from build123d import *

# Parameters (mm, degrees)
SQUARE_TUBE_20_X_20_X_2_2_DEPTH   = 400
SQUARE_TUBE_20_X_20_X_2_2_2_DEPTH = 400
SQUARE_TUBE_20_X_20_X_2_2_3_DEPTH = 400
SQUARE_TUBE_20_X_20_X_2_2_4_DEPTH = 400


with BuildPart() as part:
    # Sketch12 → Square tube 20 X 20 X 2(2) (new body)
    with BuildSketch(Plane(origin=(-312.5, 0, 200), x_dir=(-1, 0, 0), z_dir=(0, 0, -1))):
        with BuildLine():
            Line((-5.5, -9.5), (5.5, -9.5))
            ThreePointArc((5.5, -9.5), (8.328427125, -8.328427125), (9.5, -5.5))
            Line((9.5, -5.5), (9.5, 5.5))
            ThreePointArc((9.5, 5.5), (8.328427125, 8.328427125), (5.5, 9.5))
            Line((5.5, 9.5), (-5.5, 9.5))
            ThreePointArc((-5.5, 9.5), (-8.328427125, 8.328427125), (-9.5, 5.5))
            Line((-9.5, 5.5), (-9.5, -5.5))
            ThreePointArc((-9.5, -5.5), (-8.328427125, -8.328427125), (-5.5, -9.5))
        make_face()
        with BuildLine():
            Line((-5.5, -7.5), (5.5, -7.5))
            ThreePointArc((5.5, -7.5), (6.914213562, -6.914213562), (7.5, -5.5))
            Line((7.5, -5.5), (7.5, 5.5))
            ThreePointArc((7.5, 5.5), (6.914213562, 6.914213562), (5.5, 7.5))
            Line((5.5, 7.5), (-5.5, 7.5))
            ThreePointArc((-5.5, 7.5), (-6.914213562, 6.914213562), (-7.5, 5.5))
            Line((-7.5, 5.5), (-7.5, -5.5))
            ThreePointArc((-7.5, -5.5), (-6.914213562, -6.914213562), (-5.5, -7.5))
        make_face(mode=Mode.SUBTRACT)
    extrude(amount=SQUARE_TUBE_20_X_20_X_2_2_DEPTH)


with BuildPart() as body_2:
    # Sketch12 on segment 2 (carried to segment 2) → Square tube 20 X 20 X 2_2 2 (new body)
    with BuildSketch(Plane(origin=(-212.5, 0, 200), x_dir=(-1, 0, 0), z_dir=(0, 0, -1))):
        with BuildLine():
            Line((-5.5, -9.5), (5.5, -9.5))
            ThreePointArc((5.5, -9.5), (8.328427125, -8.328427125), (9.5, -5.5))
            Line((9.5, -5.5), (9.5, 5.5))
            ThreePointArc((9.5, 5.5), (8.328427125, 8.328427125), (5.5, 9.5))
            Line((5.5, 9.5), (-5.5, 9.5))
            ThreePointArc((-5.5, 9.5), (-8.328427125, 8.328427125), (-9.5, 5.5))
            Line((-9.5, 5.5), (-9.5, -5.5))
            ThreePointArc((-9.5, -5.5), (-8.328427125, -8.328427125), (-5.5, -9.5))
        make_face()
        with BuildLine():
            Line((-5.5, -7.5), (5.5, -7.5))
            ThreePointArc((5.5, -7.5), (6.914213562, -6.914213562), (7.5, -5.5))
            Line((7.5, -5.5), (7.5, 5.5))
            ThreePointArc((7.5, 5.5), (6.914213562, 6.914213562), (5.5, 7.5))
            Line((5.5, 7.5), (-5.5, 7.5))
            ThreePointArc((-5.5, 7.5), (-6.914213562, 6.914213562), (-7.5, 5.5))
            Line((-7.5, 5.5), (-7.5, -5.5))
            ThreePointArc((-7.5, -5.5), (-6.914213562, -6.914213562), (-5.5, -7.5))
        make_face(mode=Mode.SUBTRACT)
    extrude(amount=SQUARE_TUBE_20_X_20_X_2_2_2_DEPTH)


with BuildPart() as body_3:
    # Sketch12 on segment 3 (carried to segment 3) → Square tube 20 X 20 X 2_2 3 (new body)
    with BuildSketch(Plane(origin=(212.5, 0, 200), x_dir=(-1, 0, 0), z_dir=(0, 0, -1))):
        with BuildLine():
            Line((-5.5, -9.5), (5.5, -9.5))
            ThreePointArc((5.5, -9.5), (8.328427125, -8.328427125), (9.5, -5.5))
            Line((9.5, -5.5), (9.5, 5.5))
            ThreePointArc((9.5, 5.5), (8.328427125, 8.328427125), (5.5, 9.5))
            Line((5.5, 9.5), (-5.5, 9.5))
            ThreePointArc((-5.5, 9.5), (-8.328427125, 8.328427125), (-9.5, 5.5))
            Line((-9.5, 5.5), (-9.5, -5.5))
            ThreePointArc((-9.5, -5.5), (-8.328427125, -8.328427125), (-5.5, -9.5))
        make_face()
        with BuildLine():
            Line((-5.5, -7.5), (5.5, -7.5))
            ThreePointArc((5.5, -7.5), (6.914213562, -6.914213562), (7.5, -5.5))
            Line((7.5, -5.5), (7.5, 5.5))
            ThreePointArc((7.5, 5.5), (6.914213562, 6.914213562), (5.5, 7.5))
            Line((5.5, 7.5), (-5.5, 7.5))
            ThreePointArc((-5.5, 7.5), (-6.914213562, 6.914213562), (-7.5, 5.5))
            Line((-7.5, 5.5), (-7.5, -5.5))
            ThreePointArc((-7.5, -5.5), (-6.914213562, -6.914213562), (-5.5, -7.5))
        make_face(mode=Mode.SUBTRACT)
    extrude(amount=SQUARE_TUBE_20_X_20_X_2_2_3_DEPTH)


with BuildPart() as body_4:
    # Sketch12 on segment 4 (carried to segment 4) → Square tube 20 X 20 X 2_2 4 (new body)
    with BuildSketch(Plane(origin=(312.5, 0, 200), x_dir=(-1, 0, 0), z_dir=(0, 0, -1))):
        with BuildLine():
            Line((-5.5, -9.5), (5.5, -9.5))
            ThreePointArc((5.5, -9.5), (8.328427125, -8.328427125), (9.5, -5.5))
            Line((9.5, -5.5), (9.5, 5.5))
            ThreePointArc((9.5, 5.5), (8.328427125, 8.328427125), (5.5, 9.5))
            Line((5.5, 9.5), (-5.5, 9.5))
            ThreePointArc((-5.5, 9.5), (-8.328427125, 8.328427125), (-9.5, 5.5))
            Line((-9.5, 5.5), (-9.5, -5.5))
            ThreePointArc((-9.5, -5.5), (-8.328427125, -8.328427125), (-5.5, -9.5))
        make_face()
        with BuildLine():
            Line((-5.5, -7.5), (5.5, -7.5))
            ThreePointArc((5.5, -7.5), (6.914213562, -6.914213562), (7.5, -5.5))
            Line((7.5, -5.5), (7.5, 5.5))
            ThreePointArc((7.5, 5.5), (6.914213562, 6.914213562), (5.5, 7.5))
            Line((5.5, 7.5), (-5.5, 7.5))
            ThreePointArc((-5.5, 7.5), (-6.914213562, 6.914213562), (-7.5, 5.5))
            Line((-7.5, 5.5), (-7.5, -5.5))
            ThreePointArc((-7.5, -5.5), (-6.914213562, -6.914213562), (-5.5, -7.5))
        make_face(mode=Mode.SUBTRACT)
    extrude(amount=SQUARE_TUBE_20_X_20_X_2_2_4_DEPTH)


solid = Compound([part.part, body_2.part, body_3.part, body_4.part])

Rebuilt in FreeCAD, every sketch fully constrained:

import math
import FreeCAD as App
import Part
import Sketcher
from FreeCAD import Vector
Q = App.Units.Quantity

doc = App.newDocument("Part")
body = doc.addObject("PartDesign::Body", "Body")

# Sketch on XY plane
sketch1 = body.newObject("Sketcher::SketchObject", "Sketch")
sketch1.AttachmentSupport = (doc.getObject("XY_Plane"), [""])
sketch1.MapMode = "FlatFace"
sketch1.AttachmentOffset = App.Placement(Vector(0, 0, 200), App.Rotation())
sketch1.addGeometry([
    Part.LineSegment(Vector(-307, -9.5, 0), Vector(-318, -9.5, 0)),  # 0
    Part.ArcOfCircle(Part.Circle(Vector(-318, -5.5, 0), Vector(0, 0, 1), 4), math.radians(180), math.radians(270)),  # 1
    Part.LineSegment(Vector(-322, -5.5, 0), Vector(-322, 5.5, 0)),  # 2
    Part.ArcOfCircle(Part.Circle(Vector(-318, 5.5, 0), Vector(0, 0, 1), 4), math.radians(90), math.radians(180)),  # 3
    Part.LineSegment(Vector(-318, 9.5, 0), Vector(-307, 9.5, 0)),  # 4
    Part.ArcOfCircle(Part.Circle(Vector(-307, 5.5, 0), Vector(0, 0, 1), 4), math.radians(0), math.radians(90)),  # 5
    Part.LineSegment(Vector(-303, 5.5, 0), Vector(-303, -5.5, 0)),  # 6
    Part.ArcOfCircle(Part.Circle(Vector(-307, -5.5, 0), Vector(0, 0, 1), 4), math.radians(-90), math.radians(0)),  # 7
    Part.LineSegment(Vector(-318, -7.5, 0), Vector(-307, -7.5, 0)),  # 8
    Part.ArcOfCircle(Part.Circle(Vector(-307, -5.5, 0), Vector(0, 0, 1), 2), math.radians(-90), math.radians(0)),  # 9
    Part.LineSegment(Vector(-305, -5.5, 0), Vector(-305, 5.5, 0)),  # 10
    Part.ArcOfCircle(Part.Circle(Vector(-307, 5.5, 0), Vector(0, 0, 1), 2), math.radians(0), math.radians(90)),  # 11
    Part.LineSegment(Vector(-307, 7.5, 0), Vector(-318, 7.5, 0)),  # 12
    Part.ArcOfCircle(Part.Circle(Vector(-318, 5.5, 0), Vector(0, 0, 1), 2), math.radians(90), math.radians(180)),  # 13
    Part.LineSegment(Vector(-320, 5.5, 0), Vector(-320, -5.5, 0)),  # 14
    Part.ArcOfCircle(Part.Circle(Vector(-318, -5.5, 0), Vector(0, 0, 1), 2), math.radians(-180), math.radians(-90)),  # 15
], False)
sketch1.addConstraint([
    Sketcher.Constraint("Tangent", 0, 2, 1, 2),
    Sketcher.Constraint("Tangent", 1, 1, 2, 1),
    Sketcher.Constraint("Tangent", 2, 2, 3, 2),
    Sketcher.Constraint("Tangent", 3, 1, 4, 1),
    Sketcher.Constraint("Tangent", 4, 2, 5, 2),
    Sketcher.Constraint("Tangent", 5, 1, 6, 1),
    Sketcher.Constraint("Tangent", 6, 2, 7, 2),
    Sketcher.Constraint("Tangent", 7, 1, 0, 1),
    Sketcher.Constraint("Tangent", 8, 2, 9, 1),
    Sketcher.Constraint("Tangent", 9, 2, 10, 1),
    Sketcher.Constraint("Tangent", 10, 2, 11, 1),
    Sketcher.Constraint("Tangent", 11, 2, 12, 1),
    Sketcher.Constraint("Tangent", 12, 2, 13, 1),
    Sketcher.Constraint("Tangent", 13, 2, 14, 1),
    Sketcher.Constraint("Tangent", 14, 2, 15, 1),
    Sketcher.Constraint("Tangent", 15, 2, 8, 1),
    Sketcher.Constraint("Horizontal", 0),
    Sketcher.Constraint("Vertical", 2),
    Sketcher.Constraint("Horizontal", 4),
    Sketcher.Constraint("Vertical", 6),
    Sketcher.Constraint("Horizontal", 8),
    Sketcher.Constraint("Vertical", 10),
    Sketcher.Constraint("Horizontal", 12),
    Sketcher.Constraint("Vertical", 14),
    Sketcher.Constraint("Coincident", 9, 3, 7, 3),
    Sketcher.Constraint("Coincident", 11, 3, 5, 3),
    Sketcher.Constraint("Coincident", 13, 3, 3, 3),
    Sketcher.Constraint("Equal", 1, 3),
    Sketcher.Constraint("Equal", 3, 5),
    Sketcher.Constraint("Equal", 5, 7),
    Sketcher.Constraint("Equal", 13, 15),
    Sketcher.Constraint("Equal", 12, 2),
    Sketcher.Constraint("Radius", 1, Q("4 mm")),
    Sketcher.Constraint("Radius", 9, Q("2 mm")),
    Sketcher.Constraint("DistanceX", 0, 2, 0, 1, Q("11 mm")),
    Sketcher.Constraint("DistanceX", 1, 3, -1, 1, Q("318 mm")),
    Sketcher.Constraint("DistanceY", 1, 3, -1, 1, Q("5.5 mm")),
])
pad1 = body.newObject("PartDesign::Pad", "Pad")
pad1.Profile = sketch1
pad1.Length = 400
pad1.Reversed = True
body2 = doc.addObject("PartDesign::Body", "Body001")

# Sketch on XY plane
sketch2 = body2.newObject("Sketcher::SketchObject", "Sketch001")
sketch2.AttachmentSupport = (doc.getObject("XY_Plane001"), [""])
sketch2.MapMode = "FlatFace"
sketch2.AttachmentOffset = App.Placement(Vector(0, 0, 200), App.Rotation())
sketch2.addGeometry([
    Part.LineSegment(Vector(-207, -9.5, 0), Vector(-218, -9.5, 0)),  # 0
    Part.ArcOfCircle(Part.Circle(Vector(-218, -5.5, 0), Vector(0, 0, 1), 4), math.radians(180), math.radians(270)),  # 1
    Part.LineSegment(Vector(-222, -5.5, 0), Vector(-222, 5.5, 0)),  # 2
    Part.ArcOfCircle(Part.Circle(Vector(-218, 5.5, 0), Vector(0, 0, 1), 4), math.radians(90), math.radians(180)),  # 3
    Part.LineSegment(Vector(-218, 9.5, 0), Vector(-207, 9.5, 0)),  # 4
    Part.ArcOfCircle(Part.Circle(Vector(-207, 5.5, 0), Vector(0, 0, 1), 4), math.radians(0), math.radians(90)),  # 5
    Part.LineSegment(Vector(-203, 5.5, 0), Vector(-203, -5.5, 0)),  # 6
    Part.ArcOfCircle(Part.Circle(Vector(-207, -5.5, 0), Vector(0, 0, 1), 4), math.radians(-90), math.radians(0)),  # 7
    Part.LineSegment(Vector(-218, -7.5, 0), Vector(-207, -7.5, 0)),  # 8
    Part.ArcOfCircle(Part.Circle(Vector(-207, -5.5, 0), Vector(0, 0, 1), 2), math.radians(-90), math.radians(0)),  # 9
    Part.LineSegment(Vector(-205, -5.5, 0), Vector(-205, 5.5, 0)),  # 10
    Part.ArcOfCircle(Part.Circle(Vector(-207, 5.5, 0), Vector(0, 0, 1), 2), math.radians(0), math.radians(90)),  # 11
    Part.LineSegment(Vector(-207, 7.5, 0), Vector(-218, 7.5, 0)),  # 12
    Part.ArcOfCircle(Part.Circle(Vector(-218, 5.5, 0), Vector(0, 0, 1), 2), math.radians(90), math.radians(180)),  # 13
    Part.LineSegment(Vector(-220, 5.5, 0), Vector(-220, -5.5, 0)),  # 14
    Part.ArcOfCircle(Part.Circle(Vector(-218, -5.5, 0), Vector(0, 0, 1), 2), math.radians(-180), math.radians(-90)),  # 15
], False)
sketch2.addConstraint([
    Sketcher.Constraint("Tangent", 0, 2, 1, 2),
    Sketcher.Constraint("Tangent", 1, 1, 2, 1),
    Sketcher.Constraint("Tangent", 2, 2, 3, 2),
    Sketcher.Constraint("Tangent", 3, 1, 4, 1),
    Sketcher.Constraint("Tangent", 4, 2, 5, 2),
    Sketcher.Constraint("Tangent", 5, 1, 6, 1),
    Sketcher.Constraint("Tangent", 6, 2, 7, 2),
    Sketcher.Constraint("Tangent", 7, 1, 0, 1),
    Sketcher.Constraint("Tangent", 8, 2, 9, 1),
    Sketcher.Constraint("Tangent", 9, 2, 10, 1),
    Sketcher.Constraint("Tangent", 10, 2, 11, 1),
    Sketcher.Constraint("Tangent", 11, 2, 12, 1),
    Sketcher.Constraint("Tangent", 12, 2, 13, 1),
    Sketcher.Constraint("Tangent", 13, 2, 14, 1),
    Sketcher.Constraint("Tangent", 14, 2, 15, 1),
    Sketcher.Constraint("Tangent", 15, 2, 8, 1),
    Sketcher.Constraint("Horizontal", 0),
    Sketcher.Constraint("Vertical", 2),
    Sketcher.Constraint("Horizontal", 4),
    Sketcher.Constraint("Vertical", 6),
    Sketcher.Constraint("Horizontal", 8),
    Sketcher.Constraint("Vertical", 10),
    Sketcher.Constraint("Horizontal", 12),
    Sketcher.Constraint("Vertical", 14),
    Sketcher.Constraint("Coincident", 9, 3, 7, 3),
    Sketcher.Constraint("Coincident", 11, 3, 5, 3),
    Sketcher.Constraint("Coincident", 13, 3, 3, 3),
    Sketcher.Constraint("Equal", 1, 3),
    Sketcher.Constraint("Equal", 3, 5),
    Sketcher.Constraint("Equal", 5, 7),
    Sketcher.Constraint("Equal", 13, 15),
    Sketcher.Constraint("Equal", 12, 2),
    Sketcher.Constraint("Radius", 1, Q("4 mm")),
    Sketcher.Constraint("Radius", 9, Q("2 mm")),
    Sketcher.Constraint("DistanceX", 0, 2, 0, 1, Q("11 mm")),
    Sketcher.Constraint("DistanceX", 1, 3, -1, 1, Q("218 mm")),
    Sketcher.Constraint("DistanceY", 1, 3, -1, 1, Q("5.5 mm")),
])
pad2 = body2.newObject("PartDesign::Pad", "Pad001")
pad2.Profile = sketch2
pad2.Length = 400
pad2.Reversed = True
body3 = doc.addObject("PartDesign::Body", "Body002")

# Sketch on XY plane
sketch3 = body3.newObject("Sketcher::SketchObject", "Sketch002")
sketch3.AttachmentSupport = (doc.getObject("XY_Plane002"), [""])
sketch3.MapMode = "FlatFace"
sketch3.AttachmentOffset = App.Placement(Vector(0, 0, 200), App.Rotation())
sketch3.addGeometry([
    Part.LineSegment(Vector(218, -9.5, 0), Vector(207, -9.5, 0)),  # 0
    Part.ArcOfCircle(Part.Circle(Vector(207, -5.5, 0), Vector(0, 0, 1), 4), math.radians(180), math.radians(270)),  # 1
    Part.LineSegment(Vector(203, -5.5, 0), Vector(203, 5.5, 0)),  # 2
    Part.ArcOfCircle(Part.Circle(Vector(207, 5.5, 0), Vector(0, 0, 1), 4), math.radians(90), math.radians(180)),  # 3
    Part.LineSegment(Vector(207, 9.5, 0), Vector(218, 9.5, 0)),  # 4
    Part.ArcOfCircle(Part.Circle(Vector(218, 5.5, 0), Vector(0, 0, 1), 4), math.radians(0), math.radians(90)),  # 5
    Part.LineSegment(Vector(222, 5.5, 0), Vector(222, -5.5, 0)),  # 6
    Part.ArcOfCircle(Part.Circle(Vector(218, -5.5, 0), Vector(0, 0, 1), 4), math.radians(-90), math.radians(0)),  # 7
    Part.LineSegment(Vector(207, -7.5, 0), Vector(218, -7.5, 0)),  # 8
    Part.ArcOfCircle(Part.Circle(Vector(218, -5.5, 0), Vector(0, 0, 1), 2), math.radians(-90), math.radians(0)),  # 9
    Part.LineSegment(Vector(220, -5.5, 0), Vector(220, 5.5, 0)),  # 10
    Part.ArcOfCircle(Part.Circle(Vector(218, 5.5, 0), Vector(0, 0, 1), 2), math.radians(0), math.radians(90)),  # 11
    Part.LineSegment(Vector(218, 7.5, 0), Vector(207, 7.5, 0)),  # 12
    Part.ArcOfCircle(Part.Circle(Vector(207, 5.5, 0), Vector(0, 0, 1), 2), math.radians(90), math.radians(180)),  # 13
    Part.LineSegment(Vector(205, 5.5, 0), Vector(205, -5.5, 0)),  # 14
    Part.ArcOfCircle(Part.Circle(Vector(207, -5.5, 0), Vector(0, 0, 1), 2), math.radians(-180), math.radians(-90)),  # 15
], False)
sketch3.addConstraint([
    Sketcher.Constraint("Tangent", 0, 2, 1, 2),
    Sketcher.Constraint("Tangent", 1, 1, 2, 1),
    Sketcher.Constraint("Tangent", 2, 2, 3, 2),
    Sketcher.Constraint("Tangent", 3, 1, 4, 1),
    Sketcher.Constraint("Tangent", 4, 2, 5, 2),
    Sketcher.Constraint("Tangent", 5, 1, 6, 1),
    Sketcher.Constraint("Tangent", 6, 2, 7, 2),
    Sketcher.Constraint("Tangent", 7, 1, 0, 1),
    Sketcher.Constraint("Tangent", 8, 2, 9, 1),
    Sketcher.Constraint("Tangent", 9, 2, 10, 1),
    Sketcher.Constraint("Tangent", 10, 2, 11, 1),
    Sketcher.Constraint("Tangent", 11, 2, 12, 1),
    Sketcher.Constraint("Tangent", 12, 2, 13, 1),
    Sketcher.Constraint("Tangent", 13, 2, 14, 1),
    Sketcher.Constraint("Tangent", 14, 2, 15, 1),
    Sketcher.Constraint("Tangent", 15, 2, 8, 1),
    Sketcher.Constraint("Horizontal", 0),
    Sketcher.Constraint("Vertical", 2),
    Sketcher.Constraint("Horizontal", 4),
    Sketcher.Constraint("Vertical", 6),
    Sketcher.Constraint("Horizontal", 8),
    Sketcher.Constraint("Vertical", 10),
    Sketcher.Constraint("Horizontal", 12),
    Sketcher.Constraint("Vertical", 14),
    Sketcher.Constraint("Coincident", 9, 3, 7, 3),
    Sketcher.Constraint("Coincident", 11, 3, 5, 3),
    Sketcher.Constraint("Coincident", 13, 3, 3, 3),
    Sketcher.Constraint("Equal", 1, 3),
    Sketcher.Constraint("Equal", 3, 5),
    Sketcher.Constraint("Equal", 5, 7),
    Sketcher.Constraint("Equal", 13, 15),
    Sketcher.Constraint("Equal", 12, 2),
    Sketcher.Constraint("Radius", 1, Q("4 mm")),
    Sketcher.Constraint("Radius", 9, Q("2 mm")),
    Sketcher.Constraint("DistanceX", 0, 2, 0, 1, Q("11 mm")),
    Sketcher.Constraint("DistanceX", -1, 1, 1, 3, Q("207 mm")),
    Sketcher.Constraint("DistanceY", 1, 3, -1, 1, Q("5.5 mm")),
])
pad3 = body3.newObject("PartDesign::Pad", "Pad002")
pad3.Profile = sketch3
pad3.Length = 400
pad3.Reversed = True
body4 = doc.addObject("PartDesign::Body", "Body003")

# Sketch on XY plane
sketch4 = body4.newObject("Sketcher::SketchObject", "Sketch003")
sketch4.AttachmentSupport = (doc.getObject("XY_Plane003"), [""])
sketch4.MapMode = "FlatFace"
sketch4.AttachmentOffset = App.Placement(Vector(0, 0, 200), App.Rotation())
sketch4.addGeometry([
    Part.LineSegment(Vector(318, -9.5, 0), Vector(307, -9.5, 0)),  # 0
    Part.ArcOfCircle(Part.Circle(Vector(307, -5.5, 0), Vector(0, 0, 1), 4), math.radians(180), math.radians(270)),  # 1
    Part.LineSegment(Vector(303, -5.5, 0), Vector(303, 5.5, 0)),  # 2
    Part.ArcOfCircle(Part.Circle(Vector(307, 5.5, 0), Vector(0, 0, 1), 4), math.radians(90), math.radians(180)),  # 3
    Part.LineSegment(Vector(307, 9.5, 0), Vector(318, 9.5, 0)),  # 4
    Part.ArcOfCircle(Part.Circle(Vector(318, 5.5, 0), Vector(0, 0, 1), 4), math.radians(0), math.radians(90)),  # 5
    Part.LineSegment(Vector(322, 5.5, 0), Vector(322, -5.5, 0)),  # 6
    Part.ArcOfCircle(Part.Circle(Vector(318, -5.5, 0), Vector(0, 0, 1), 4), math.radians(-90), math.radians(0)),  # 7
    Part.LineSegment(Vector(307, -7.5, 0), Vector(318, -7.5, 0)),  # 8
    Part.ArcOfCircle(Part.Circle(Vector(318, -5.5, 0), Vector(0, 0, 1), 2), math.radians(-90), math.radians(0)),  # 9
    Part.LineSegment(Vector(320, -5.5, 0), Vector(320, 5.5, 0)),  # 10
    Part.ArcOfCircle(Part.Circle(Vector(318, 5.5, 0), Vector(0, 0, 1), 2), math.radians(0), math.radians(90)),  # 11
    Part.LineSegment(Vector(318, 7.5, 0), Vector(307, 7.5, 0)),  # 12
    Part.ArcOfCircle(Part.Circle(Vector(307, 5.5, 0), Vector(0, 0, 1), 2), math.radians(90), math.radians(180)),  # 13
    Part.LineSegment(Vector(305, 5.5, 0), Vector(305, -5.5, 0)),  # 14
    Part.ArcOfCircle(Part.Circle(Vector(307, -5.5, 0), Vector(0, 0, 1), 2), math.radians(-180), math.radians(-90)),  # 15
], False)
sketch4.addConstraint([
    Sketcher.Constraint("Tangent", 0, 2, 1, 2),
    Sketcher.Constraint("Tangent", 1, 1, 2, 1),
    Sketcher.Constraint("Tangent", 2, 2, 3, 2),
    Sketcher.Constraint("Tangent", 3, 1, 4, 1),
    Sketcher.Constraint("Tangent", 4, 2, 5, 2),
    Sketcher.Constraint("Tangent", 5, 1, 6, 1),
    Sketcher.Constraint("Tangent", 6, 2, 7, 2),
    Sketcher.Constraint("Tangent", 7, 1, 0, 1),
    Sketcher.Constraint("Tangent", 8, 2, 9, 1),
    Sketcher.Constraint("Tangent", 9, 2, 10, 1),
    Sketcher.Constraint("Tangent", 10, 2, 11, 1),
    Sketcher.Constraint("Tangent", 11, 2, 12, 1),
    Sketcher.Constraint("Tangent", 12, 2, 13, 1),
    Sketcher.Constraint("Tangent", 13, 2, 14, 1),
    Sketcher.Constraint("Tangent", 14, 2, 15, 1),
    Sketcher.Constraint("Tangent", 15, 2, 8, 1),
    Sketcher.Constraint("Horizontal", 0),
    Sketcher.Constraint("Vertical", 2),
    Sketcher.Constraint("Horizontal", 4),
    Sketcher.Constraint("Vertical", 6),
    Sketcher.Constraint("Horizontal", 8),
    Sketcher.Constraint("Vertical", 10),
    Sketcher.Constraint("Horizontal", 12),
    Sketcher.Constraint("Vertical", 14),
    Sketcher.Constraint("Coincident", 9, 3, 7, 3),
    Sketcher.Constraint("Coincident", 11, 3, 5, 3),
    Sketcher.Constraint("Coincident", 13, 3, 3, 3),
    Sketcher.Constraint("Equal", 1, 3),
    Sketcher.Constraint("Equal", 3, 5),
    Sketcher.Constraint("Equal", 5, 7),
    Sketcher.Constraint("Equal", 13, 15),
    Sketcher.Constraint("Equal", 12, 2),
    Sketcher.Constraint("Radius", 1, Q("4 mm")),
    Sketcher.Constraint("Radius", 9, Q("2 mm")),
    Sketcher.Constraint("DistanceX", 0, 2, 0, 1, Q("11 mm")),
    Sketcher.Constraint("DistanceX", -1, 1, 1, 3, Q("307 mm")),
    Sketcher.Constraint("DistanceY", 1, 3, -1, 1, Q("5.5 mm")),
])
pad4 = body4.newObject("PartDesign::Pad", "Pad003")
pad4.Profile = sketch4
pad4.Length = 400
pad4.Reversed = True

doc.recompute()
